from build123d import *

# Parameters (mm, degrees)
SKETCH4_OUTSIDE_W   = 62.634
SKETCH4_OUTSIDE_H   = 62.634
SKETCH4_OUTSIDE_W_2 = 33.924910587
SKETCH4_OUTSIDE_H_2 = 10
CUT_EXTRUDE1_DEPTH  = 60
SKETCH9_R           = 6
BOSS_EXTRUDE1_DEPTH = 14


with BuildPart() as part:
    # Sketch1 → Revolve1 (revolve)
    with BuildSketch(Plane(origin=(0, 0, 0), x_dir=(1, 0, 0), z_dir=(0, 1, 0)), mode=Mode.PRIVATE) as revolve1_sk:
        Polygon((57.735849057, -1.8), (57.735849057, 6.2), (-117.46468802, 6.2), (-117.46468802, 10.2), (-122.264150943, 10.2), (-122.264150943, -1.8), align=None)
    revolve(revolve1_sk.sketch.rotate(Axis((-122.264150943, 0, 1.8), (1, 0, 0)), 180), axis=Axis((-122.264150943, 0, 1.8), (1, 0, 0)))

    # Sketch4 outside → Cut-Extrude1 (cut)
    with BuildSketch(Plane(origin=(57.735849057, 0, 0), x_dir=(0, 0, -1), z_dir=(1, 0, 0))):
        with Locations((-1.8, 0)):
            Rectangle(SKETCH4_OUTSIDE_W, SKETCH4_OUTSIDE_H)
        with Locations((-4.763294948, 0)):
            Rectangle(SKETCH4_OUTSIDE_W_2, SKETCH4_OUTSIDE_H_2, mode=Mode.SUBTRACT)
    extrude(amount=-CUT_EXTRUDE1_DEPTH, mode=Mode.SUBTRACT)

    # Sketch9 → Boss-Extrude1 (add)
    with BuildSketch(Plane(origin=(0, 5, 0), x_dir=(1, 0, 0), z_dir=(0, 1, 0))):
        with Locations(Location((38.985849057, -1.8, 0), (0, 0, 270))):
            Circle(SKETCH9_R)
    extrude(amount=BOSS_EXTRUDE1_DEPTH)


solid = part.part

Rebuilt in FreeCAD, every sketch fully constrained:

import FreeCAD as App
import Part
import Sketcher

V = App.Vector


def add_polygon(sketch, points):
    """Adds a closed chain of lines whose ends are joined by coincident constraints."""
    first, n = sketch.GeometryCount, len(points)
    for a, b in zip(points, points[1:] + points[:1]):
        sketch.addGeometry(Part.LineSegment(App.Vector(*a, 0), App.Vector(*b, 0)), False)
    for i in range(n):
        sketch.addConstraint(Sketcher.Constraint("Coincident", first + i, 2, first + (i + 1) % n, 1))

doc = App.newDocument("Part")
body = doc.addObject("PartDesign::Body", "Body")

# Sketch on XZ plane
sketch1 = doc.addObject("Sketcher::SketchObject", "Sketch")
body.addObject(sketch1)
sketch1.AttachmentSupport = (doc.XZ_Plane, [""])
sketch1.MapMode = "FlatFace"
add_polygon(sketch1, [(57.735849, 1.8), (57.735849, -6.2), (-117.464688, -6.2), (-117.464688, -10.2), (-122.264151, -10.2), (-122.264151, 1.8)])  # lines 0-5
sketch1.addGeometry(Part.LineSegment(V(-122.264151, 1.8, 0), V(57.735849, 1.8, 0)), True)  # axis
sketch1.addConstraint([
    Sketcher.Constraint("Vertical", 0),
    Sketcher.Constraint("Horizontal", 1),
    Sketcher.Constraint("Vertical", 2),
    Sketcher.Constraint("Horizontal", 3),
    Sketcher.Constraint("Vertical", 4),
    Sketcher.Constraint("Horizontal", 5),
    Sketcher.Constraint("Horizontal", 6),
    Sketcher.Constraint("Coincident", 6, 1, 4, 2),
    Sketcher.Constraint("Vertical", 0, 2, 6, 2),
    Sketcher.Constraint("DistanceX", 5, 1, 5, 2, 180.0),
    Sketcher.Constraint("DistanceY", 0, 2, 0, 1, 8.0),
    Sketcher.Constraint("DistanceY", 2, 2, 2, 1, 4.0),
    Sketcher.Constraint("DistanceY", 0, 2, -1, 1, 6.2),
    Sketcher.Constraint("DistanceX", 1, 2, 1, 1, 175.200537),
    Sketcher.Constraint("DistanceX", -1, 1, 0, 2, 57.735849),
])
revolution = doc.addObject("PartDesign::Revolution", "Revolution")
body.addObject(revolution)
revolution.Profile = sketch1
revolution.ReferenceAxis = (sketch1, ["Axis0"])
revolution.Angle = 360

# Sketch on YZ plane
sketch2 = doc.addObject("Sketcher::SketchObject", "Sketch001")
body.addObject(sketch2)
sketch2.AttachmentSupport = (doc.YZ_Plane, [""])
sketch2.MapMode = "FlatFace"
sketch2.AttachmentOffset = App.Placement(V(0, 0, 57.735849), App.Rotation())
add_polygon(sketch2, [(31.317, 33.117), (-31.317, 33.117), (-31.317, -29.517), (31.317, -29.517)])  # lines 0-3
add_polygon(sketch2, [(-5, -12.19916), (-5, 21.72575), (5, 21.72575), (5, -12.19916)])  # lines 4-7
sketch2.addConstraint([
    Sketcher.Constraint("Horizontal", 0),
    Sketcher.Constraint("Vertical", 1),
    Sketcher.Constraint("Horizontal", 2),
    Sketcher.Constraint("Vertical", 3),
    Sketcher.Constraint("Vertical", 4),
    Sketcher.Constraint("Horizontal", 5),
    Sketcher.Constraint("Vertical", 6),
    Sketcher.Constraint("Horizontal", 7),
    Sketcher.Constraint("Equal", 2, 1),
    Sketcher.Constraint("DistanceX", 5, 1, 5, 2, 10.0),
    Sketcher.Constraint("DistanceX", 4, 2, -1, 1, 5.0),
    Sketcher.Constraint("DistanceX", 0, 2, 0, 1, 62.634),
    Sketcher.Constraint("DistanceX", 0, 2, -1, 1, 31.317),
    Sketcher.Constraint("DistanceY", -1, 1, 0, 2, 33.117),
    Sketcher.Constraint("DistanceY", 4, 1, 4, 2, 33.924911),
    Sketcher.Constraint("DistanceY", -1, 1, 4, 2, 21.72575),
])
pocket1 = doc.addObject("PartDesign::Pocket", "Pocket")
body.addObject(pocket1)
pocket1.Profile = sketch2
pocket1.Length = 60

# Sketch on XZ plane
sketch3 = doc.addObject("Sketcher::SketchObject", "Sketch002")
body.addObject(sketch3)
sketch3.AttachmentSupport = (doc.XZ_Plane, [""])
sketch3.MapMode = "FlatFace"
sketch3.AttachmentOffset = App.Placement(V(0, 0, -5), App.Rotation())
sketch3.addGeometry(Part.Circle(V(38.985849, 1.8, 0), V(0, 0, 1), 6), False)
sketch3.addConstraint([
    Sketcher.Constraint("Diameter", 0, 12.0),
    Sketcher.Constraint("DistanceY", -1, 1, 0, 3, 1.8),
    Sketcher.Constraint("DistanceX", -1, 1, 0, 3, 38.985849),
])
pad1 = doc.addObject("PartDesign::Pad", "Pad")
body.addObject(pad1)
pad1.Profile = sketch3
pad1.Length = 14
pad1.Reversed = True

doc.recompute()
